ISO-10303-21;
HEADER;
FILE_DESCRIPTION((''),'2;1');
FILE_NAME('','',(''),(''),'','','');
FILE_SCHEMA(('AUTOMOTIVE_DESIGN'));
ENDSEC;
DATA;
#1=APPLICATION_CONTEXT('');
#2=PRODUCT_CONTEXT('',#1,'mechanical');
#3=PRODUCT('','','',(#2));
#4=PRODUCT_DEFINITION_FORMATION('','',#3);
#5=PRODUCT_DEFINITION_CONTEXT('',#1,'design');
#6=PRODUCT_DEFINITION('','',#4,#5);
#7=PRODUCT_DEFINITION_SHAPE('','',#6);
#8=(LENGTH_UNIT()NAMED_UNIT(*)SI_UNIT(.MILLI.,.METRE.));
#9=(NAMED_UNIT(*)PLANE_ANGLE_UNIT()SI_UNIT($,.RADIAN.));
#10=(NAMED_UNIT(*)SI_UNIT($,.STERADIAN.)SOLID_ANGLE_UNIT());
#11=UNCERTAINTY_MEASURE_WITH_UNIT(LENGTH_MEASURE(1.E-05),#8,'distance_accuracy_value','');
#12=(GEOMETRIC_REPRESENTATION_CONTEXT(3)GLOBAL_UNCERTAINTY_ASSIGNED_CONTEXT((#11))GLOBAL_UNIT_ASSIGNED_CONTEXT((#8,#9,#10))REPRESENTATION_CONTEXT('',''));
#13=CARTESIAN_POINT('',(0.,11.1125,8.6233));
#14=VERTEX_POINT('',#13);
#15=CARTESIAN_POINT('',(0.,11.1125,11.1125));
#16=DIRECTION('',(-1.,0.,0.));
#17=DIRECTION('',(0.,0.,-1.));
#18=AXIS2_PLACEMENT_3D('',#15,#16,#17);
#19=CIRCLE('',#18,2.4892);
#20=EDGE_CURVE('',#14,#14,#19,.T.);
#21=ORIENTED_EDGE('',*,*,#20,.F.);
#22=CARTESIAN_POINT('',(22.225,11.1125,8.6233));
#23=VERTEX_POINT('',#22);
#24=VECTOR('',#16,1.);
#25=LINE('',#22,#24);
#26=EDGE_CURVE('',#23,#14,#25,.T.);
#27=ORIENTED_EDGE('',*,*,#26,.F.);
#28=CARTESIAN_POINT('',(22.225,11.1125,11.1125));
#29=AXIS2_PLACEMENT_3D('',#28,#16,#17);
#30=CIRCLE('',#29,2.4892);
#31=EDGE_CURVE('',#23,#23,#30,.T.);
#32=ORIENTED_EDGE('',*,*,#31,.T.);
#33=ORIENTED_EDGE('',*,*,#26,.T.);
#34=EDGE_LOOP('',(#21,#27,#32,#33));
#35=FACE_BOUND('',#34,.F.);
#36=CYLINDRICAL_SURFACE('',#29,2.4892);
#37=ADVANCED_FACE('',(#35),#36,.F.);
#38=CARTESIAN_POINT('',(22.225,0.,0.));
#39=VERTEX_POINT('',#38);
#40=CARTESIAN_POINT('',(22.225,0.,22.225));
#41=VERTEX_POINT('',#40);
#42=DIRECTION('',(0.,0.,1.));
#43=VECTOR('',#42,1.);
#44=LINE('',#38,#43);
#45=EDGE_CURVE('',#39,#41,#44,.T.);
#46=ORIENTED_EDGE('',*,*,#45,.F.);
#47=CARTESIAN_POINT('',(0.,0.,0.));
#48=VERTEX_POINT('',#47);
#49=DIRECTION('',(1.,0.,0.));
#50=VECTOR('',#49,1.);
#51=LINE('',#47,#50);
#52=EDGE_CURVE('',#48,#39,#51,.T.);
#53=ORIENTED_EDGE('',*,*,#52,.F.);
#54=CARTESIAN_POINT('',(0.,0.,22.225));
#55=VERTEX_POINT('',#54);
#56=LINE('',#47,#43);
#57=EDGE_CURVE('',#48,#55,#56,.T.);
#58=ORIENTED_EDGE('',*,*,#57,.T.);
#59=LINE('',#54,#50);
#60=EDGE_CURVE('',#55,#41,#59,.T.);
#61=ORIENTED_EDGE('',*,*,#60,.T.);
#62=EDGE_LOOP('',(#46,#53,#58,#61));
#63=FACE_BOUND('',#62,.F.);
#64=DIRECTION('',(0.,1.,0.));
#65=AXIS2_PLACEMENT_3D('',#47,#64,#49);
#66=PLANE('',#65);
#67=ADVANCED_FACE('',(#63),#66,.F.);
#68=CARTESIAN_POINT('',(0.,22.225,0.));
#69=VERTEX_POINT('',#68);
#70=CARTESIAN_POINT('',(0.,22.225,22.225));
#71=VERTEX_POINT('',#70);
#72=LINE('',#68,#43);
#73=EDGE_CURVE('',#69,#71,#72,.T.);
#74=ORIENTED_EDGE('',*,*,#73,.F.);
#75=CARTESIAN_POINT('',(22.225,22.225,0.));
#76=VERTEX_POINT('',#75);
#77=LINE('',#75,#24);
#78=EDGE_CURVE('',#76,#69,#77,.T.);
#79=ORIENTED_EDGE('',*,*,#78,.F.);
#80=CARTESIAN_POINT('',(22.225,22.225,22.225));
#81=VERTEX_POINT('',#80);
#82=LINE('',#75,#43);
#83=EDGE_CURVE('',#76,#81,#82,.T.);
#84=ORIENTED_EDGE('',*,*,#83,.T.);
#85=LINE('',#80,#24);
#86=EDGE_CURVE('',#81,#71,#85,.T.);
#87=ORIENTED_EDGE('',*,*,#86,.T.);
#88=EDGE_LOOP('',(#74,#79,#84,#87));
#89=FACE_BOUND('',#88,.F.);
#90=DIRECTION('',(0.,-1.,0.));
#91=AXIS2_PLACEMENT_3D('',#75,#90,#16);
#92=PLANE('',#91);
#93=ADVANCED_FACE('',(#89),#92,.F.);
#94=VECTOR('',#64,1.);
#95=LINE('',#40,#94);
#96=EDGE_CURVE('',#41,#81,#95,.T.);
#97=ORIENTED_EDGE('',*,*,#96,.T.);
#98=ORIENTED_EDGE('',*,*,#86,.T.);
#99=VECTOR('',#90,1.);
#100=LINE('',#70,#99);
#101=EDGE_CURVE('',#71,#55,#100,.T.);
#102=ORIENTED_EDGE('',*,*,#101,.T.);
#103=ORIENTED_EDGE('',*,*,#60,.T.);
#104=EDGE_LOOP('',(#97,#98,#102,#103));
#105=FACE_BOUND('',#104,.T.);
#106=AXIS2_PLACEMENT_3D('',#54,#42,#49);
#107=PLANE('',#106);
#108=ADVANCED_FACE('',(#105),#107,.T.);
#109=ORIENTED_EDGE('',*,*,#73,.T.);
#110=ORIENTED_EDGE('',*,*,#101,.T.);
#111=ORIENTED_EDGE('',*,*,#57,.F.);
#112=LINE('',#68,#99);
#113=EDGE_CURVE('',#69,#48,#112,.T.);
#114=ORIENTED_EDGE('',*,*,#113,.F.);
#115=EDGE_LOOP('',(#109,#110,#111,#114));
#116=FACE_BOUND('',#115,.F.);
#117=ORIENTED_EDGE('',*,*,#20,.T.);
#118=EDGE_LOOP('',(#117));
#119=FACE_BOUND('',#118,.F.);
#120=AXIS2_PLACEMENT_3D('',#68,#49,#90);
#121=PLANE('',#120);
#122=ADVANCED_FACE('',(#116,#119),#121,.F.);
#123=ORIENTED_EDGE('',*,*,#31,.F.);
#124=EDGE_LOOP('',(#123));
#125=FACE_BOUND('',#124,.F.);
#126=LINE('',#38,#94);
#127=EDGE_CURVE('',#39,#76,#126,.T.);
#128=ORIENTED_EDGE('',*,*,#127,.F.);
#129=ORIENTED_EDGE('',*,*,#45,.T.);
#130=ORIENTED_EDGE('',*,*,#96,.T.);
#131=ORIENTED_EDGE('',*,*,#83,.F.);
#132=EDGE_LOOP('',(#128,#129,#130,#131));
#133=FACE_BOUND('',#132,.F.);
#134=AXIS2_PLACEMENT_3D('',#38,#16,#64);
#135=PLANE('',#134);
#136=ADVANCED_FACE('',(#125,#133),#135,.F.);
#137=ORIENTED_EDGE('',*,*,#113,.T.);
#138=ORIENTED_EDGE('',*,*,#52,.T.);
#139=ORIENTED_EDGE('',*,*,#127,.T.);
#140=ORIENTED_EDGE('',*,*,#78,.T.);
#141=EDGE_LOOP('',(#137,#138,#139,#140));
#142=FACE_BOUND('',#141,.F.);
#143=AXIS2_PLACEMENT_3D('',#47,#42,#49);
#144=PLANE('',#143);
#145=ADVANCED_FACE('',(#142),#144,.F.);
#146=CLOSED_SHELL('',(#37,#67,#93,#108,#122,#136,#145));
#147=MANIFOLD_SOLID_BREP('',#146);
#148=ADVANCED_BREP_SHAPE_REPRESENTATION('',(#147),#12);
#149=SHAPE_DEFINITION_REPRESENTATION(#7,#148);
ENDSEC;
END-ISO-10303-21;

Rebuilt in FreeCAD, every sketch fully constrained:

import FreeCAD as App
import Part
import Sketcher
Q = App.Units.Quantity


def add_polygon(sketch, points):
    """Adds a closed chain of lines whose ends are joined by coincident constraints."""
    first, n = sketch.GeometryCount, len(points)
    for a, b in zip(points, points[1:] + points[:1]):
        sketch.addGeometry(Part.LineSegment(App.Vector(*a, 0), App.Vector(*b, 0)), False)
    for i in range(n):
        sketch.addConstraint(Sketcher.Constraint("Coincident", first + i, 2, first + (i + 1) % n, 1))

doc = App.newDocument("Part")
params = doc.addObject("Spreadsheet::Sheet", "Params")
for row, (alias, value) in enumerate([
    ("sketch1_width", "0.875 in"),
    ("pad1_length", "0.875 in"),
    ("sketch2_diameter", "0.196 in"),
    ("hole_diameter", "0.196 in"),
], start=1):
    params.set(f"A{row}", alias)
    params.set(f"B{row}", "=" + value)
    params.setAlias(f"B{row}", alias)

body = doc.addObject("PartDesign::Body", "Body")

sketch1 = body.newObject("Sketcher::SketchObject", "Sketch")
sketch1.AttachmentSupport = (doc.getObject("XY_Plane"), [""])
sketch1.MapMode = "FlatFace"
add_polygon(sketch1, [(0, 22), (0, 0), (22, 0), (22, 22)])
sketch1.addConstraint(Sketcher.Constraint("Vertical", 0))
sketch1.addConstraint(Sketcher.Constraint("Horizontal", 1))
sketch1.addConstraint(Sketcher.Constraint("Vertical", 2))
sketch1.addConstraint(Sketcher.Constraint("Horizontal", 3))
sketch1.addConstraint(Sketcher.Constraint("Coincident", 0, 2, -1, 1))
sketch1.addConstraint(Sketcher.Constraint("Equal", 3, 0))
sketch1.addConstraint(Sketcher.Constraint("DistanceX", 1, 1, 1, 2, Q("0.875 in")))
sketch1.setExpression("Constraints[10]", "Params.sketch1_width")
pad1 = body.newObject("PartDesign::Pad", "Pad")
pad1.Profile = sketch1
pad1.setExpression("Length", "Params.pad1_length")

sketch2 = body.newObject("Sketcher::SketchObject", "Sketch001")
sketch2.AttachmentSupport = (doc.getObject("YZ_Plane"), [""])
sketch2.MapMode = "FlatFace"
sketch2.AttachmentOffset = App.Placement(App.Vector(0, 0, 0.875 * 25.4), App.Rotation())
sketch2.addGeometry(Part.Circle(App.Vector(11.1, 11.1, 0), App.Vector(0, 0, 1), 2.5), False)
sketch2.addConstraint(Sketcher.Constraint("Diameter", 0, Q("0.196 in")))
sketch2.addConstraint(Sketcher.Constraint("DistanceX", -1, 1, 0, 3, Q("0.4375 in")))
sketch2.addConstraint(Sketcher.Constraint("DistanceY", -1, 1, 0, 3, Q("0.4375 in")))
sketch2.setExpression("Constraints[0]", "Params.sketch2_diameter")
doc.recompute()
hole = body.newObject("PartDesign::Hole", "Hole")
hole.Profile = sketch2
hole.ThreadType = "None"
hole.setExpression("Diameter", "Params.hole_diameter")
hole.DepthType = "ThroughAll"

doc.recompute()
